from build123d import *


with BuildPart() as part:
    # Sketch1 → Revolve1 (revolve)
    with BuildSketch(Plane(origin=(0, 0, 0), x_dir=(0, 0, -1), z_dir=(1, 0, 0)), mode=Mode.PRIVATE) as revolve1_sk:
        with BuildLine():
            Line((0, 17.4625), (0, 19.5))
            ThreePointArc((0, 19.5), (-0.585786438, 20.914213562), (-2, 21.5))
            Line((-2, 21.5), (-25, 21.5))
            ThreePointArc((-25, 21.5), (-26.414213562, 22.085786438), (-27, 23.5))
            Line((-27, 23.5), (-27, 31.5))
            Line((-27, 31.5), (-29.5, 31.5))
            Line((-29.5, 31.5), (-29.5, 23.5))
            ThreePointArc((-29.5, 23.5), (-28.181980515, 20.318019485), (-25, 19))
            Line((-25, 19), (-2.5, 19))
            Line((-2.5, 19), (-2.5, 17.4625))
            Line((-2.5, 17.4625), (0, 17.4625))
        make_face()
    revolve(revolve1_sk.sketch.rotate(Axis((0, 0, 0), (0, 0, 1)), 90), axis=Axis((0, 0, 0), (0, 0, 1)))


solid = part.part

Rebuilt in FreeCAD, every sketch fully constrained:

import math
import FreeCAD as App
import Part
import Sketcher
Q = App.Units.Quantity

doc = App.newDocument("Part")
params = doc.addObject("Spreadsheet::Sheet", "Params")
for row, (alias, value) in enumerate([
    ("sketch1_radius", "2 mm"),
    ("sketch1_radius2", "4.5 mm"),
    ("sketch1_width", "8 mm"),
    ("sketch1_height", "23 mm"),
    ("revolution_angle", "360 deg"),
], start=1):
    params.set(f"A{row}", alias)
    params.set(f"B{row}", "=" + value)
    params.setAlias(f"B{row}", alias)

body = doc.addObject("PartDesign::Body", "Body")

# Sketch on YZ plane
sketch1 = body.newObject("Sketcher::SketchObject", "Sketch")
sketch1.AttachmentSupport = (doc.getObject("YZ_Plane"), [""])
sketch1.MapMode = "FlatFace"
sketch1.addGeometry([
    Part.LineSegment(App.Vector(17.5, 0, 0), App.Vector(19.5, 0, 0)),  # 0
    Part.ArcOfCircle(Part.Circle(App.Vector(19.5, 2, 0), App.Vector(0, 0, 1), 2), math.radians(-90), math.radians(0)),  # 1
    Part.LineSegment(App.Vector(21.5, 2, 0), App.Vector(21.5, 25, 0)),  # 2
    Part.ArcOfCircle(Part.Circle(App.Vector(23.5, 25, 0), App.Vector(0, 0, 1), 2), math.radians(90), math.radians(180)),  # 3
    Part.LineSegment(App.Vector(23.5, 27, 0), App.Vector(31.5, 27, 0)),  # 4
    Part.LineSegment(App.Vector(31.5, 27, 0), App.Vector(31.5, 29.5, 0)),  # 5
    Part.LineSegment(App.Vector(31.5, 29.5, 0), App.Vector(23.5, 29.5, 0)),  # 6
    Part.ArcOfCircle(Part.Circle(App.Vector(23.5, 25, 0), App.Vector(0, 0, 1), 4.5), math.radians(90), math.radians(180)),  # 7
    Part.LineSegment(App.Vector(19, 25, 0), App.Vector(19, 2.5, 0)),  # 8
    Part.LineSegment(App.Vector(19, 2.5, 0), App.Vector(17.5, 2.5, 0)),  # 9
    Part.LineSegment(App.Vector(17.5, 2.5, 0), App.Vector(17.5, 0, 0)),  # 10
], False)
sketch1.addConstraint([
    Sketcher.Constraint("Tangent", 0, 2, 1, 1),
    Sketcher.Constraint("Tangent", 1, 2, 2, 1),
    Sketcher.Constraint("Tangent", 2, 2, 3, 2),
    Sketcher.Constraint("Tangent", 3, 1, 4, 1),
    Sketcher.Constraint("Coincident", 4, 2, 5, 1),
    Sketcher.Constraint("Coincident", 5, 2, 6, 1),
    Sketcher.Constraint("Tangent", 6, 2, 7, 1),
    Sketcher.Constraint("Tangent", 7, 2, 8, 1),
    Sketcher.Constraint("Coincident", 8, 2, 9, 1),
    Sketcher.Constraint("Coincident", 9, 2, 10, 1),
    Sketcher.Constraint("Coincident", 10, 2, 0, 1),
    Sketcher.Constraint("Horizontal", 0),
    Sketcher.Constraint("Vertical", 2),
    Sketcher.Constraint("Horizontal", 4),
    Sketcher.Constraint("Vertical", 5),
    Sketcher.Constraint("Horizontal", 6),
    Sketcher.Constraint("Vertical", 8),
    Sketcher.Constraint("Horizontal", 9),
    Sketcher.Constraint("Vertical", 10),
    Sketcher.Constraint("Coincident", 7, 3, 3, 3),
    Sketcher.Constraint("Equal", 1, 3),
    Sketcher.Constraint("PointOnObject", 0, 2, -1),
    Sketcher.Constraint("Equal", 5, 10),
    Sketcher.Constraint("Radius", 1, Q("2 mm")),
    Sketcher.Constraint("Radius", 7, Q("4.5 mm")),
    Sketcher.Constraint("DistanceX", 4, 1, 4, 2, Q("8 mm")),
    Sketcher.Constraint("DistanceY", 2, 1, 2, 2, Q("23 mm")),
    Sketcher.Constraint("DistanceX", -1, 1, 7, 2, Q("19 mm")),
    Sketcher.Constraint("DistanceX", 0, 1, 0, 2, Q("2.0375 mm")),
])
sketch1.setExpression("Constraints[23]", "Params.sketch1_radius")
sketch1.setExpression("Constraints[24]", "Params.sketch1_radius2")
sketch1.setExpression("Constraints[25]", "Params.sketch1_width")
sketch1.setExpression("Constraints[26]", "Params.sketch1_height")
revolution = body.newObject("PartDesign::Revolution", "Revolution")
revolution.Profile = sketch1
revolution.ReferenceAxis = (sketch1, ["V_Axis"])
revolution.setExpression("Angle", "Params.revolution_angle")

doc.recompute()
